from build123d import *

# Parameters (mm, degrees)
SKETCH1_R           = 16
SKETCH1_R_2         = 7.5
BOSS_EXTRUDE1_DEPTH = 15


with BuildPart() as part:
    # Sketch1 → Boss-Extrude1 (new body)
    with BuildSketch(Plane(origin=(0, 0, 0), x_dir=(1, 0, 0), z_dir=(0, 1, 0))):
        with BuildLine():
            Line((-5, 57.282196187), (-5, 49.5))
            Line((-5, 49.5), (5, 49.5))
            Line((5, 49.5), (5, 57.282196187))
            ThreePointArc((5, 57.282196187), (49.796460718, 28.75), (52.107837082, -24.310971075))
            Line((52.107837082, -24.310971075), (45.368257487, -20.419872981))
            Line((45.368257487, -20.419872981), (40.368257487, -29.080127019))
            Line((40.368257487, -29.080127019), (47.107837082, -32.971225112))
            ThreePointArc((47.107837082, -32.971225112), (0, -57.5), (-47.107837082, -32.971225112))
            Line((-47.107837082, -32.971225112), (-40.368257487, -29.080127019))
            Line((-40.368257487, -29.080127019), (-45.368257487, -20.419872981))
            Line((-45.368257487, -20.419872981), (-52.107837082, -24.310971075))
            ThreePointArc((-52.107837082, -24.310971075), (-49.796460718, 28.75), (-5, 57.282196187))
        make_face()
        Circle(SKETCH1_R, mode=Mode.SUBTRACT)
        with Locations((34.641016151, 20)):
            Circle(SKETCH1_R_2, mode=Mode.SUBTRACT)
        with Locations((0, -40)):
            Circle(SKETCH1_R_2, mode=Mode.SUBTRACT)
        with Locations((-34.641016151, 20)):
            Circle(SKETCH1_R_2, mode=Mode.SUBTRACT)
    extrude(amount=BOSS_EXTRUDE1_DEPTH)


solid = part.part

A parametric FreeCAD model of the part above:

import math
import FreeCAD as App
import Part
import Sketcher
from FreeCAD import Vector
Q = App.Units.Quantity

doc = App.newDocument("Part")
body = doc.addObject("PartDesign::Body", "Body")

# Sketch on XZ plane
sketch1 = body.newObject("Sketcher::SketchObject", "Sketch")
sketch1.AttachmentSupport = (doc.getObject("XZ_Plane"), [""])
sketch1.MapMode = "FlatFace"
sketch1.addGeometry([
    Part.LineSegment(Vector(-5, -49.5, 0), Vector(-5, -57.282196, 0)),  # 0
    Part.ArcOfCircle(Part.Circle(Vector(0, 0, 0), Vector(0, 0, 1), 57.5), math.radians(154.988542), math.radians(265.011458)),  # 1
    Part.LineSegment(Vector(-52.107837, 24.310971, 0), Vector(-45.368257, 20.419873, 0)),  # 2
    Part.LineSegment(Vector(-45.368257, 20.419873, 0), Vector(-40.368257, 29.080127, 0)),  # 3
    Part.LineSegment(Vector(-40.368257, 29.080127, 0), Vector(-47.107837, 32.971225, 0)),  # 4
    Part.ArcOfCircle(Part.Circle(Vector(0, 0, 0), Vector(0, 0, 1), 57.5), math.radians(34.988542), math.radians(145.011458)),  # 5
    Part.LineSegment(Vector(47.107837, 32.971225, 0), Vector(40.368257, 29.080127, 0)),  # 6
    Part.LineSegment(Vector(40.368257, 29.080127, 0), Vector(45.368257, 20.419873, 0)),  # 7
    Part.LineSegment(Vector(45.368257, 20.419873, 0), Vector(52.107837, 24.310971, 0)),  # 8
    Part.ArcOfCircle(Part.Circle(Vector(0, 0, 0), Vector(0, 0, 1), 57.5), math.radians(-85.011458), math.radians(25.011458)),  # 9
    Part.LineSegment(Vector(5, -57.282196, 0), Vector(5, -49.5, 0)),  # 10
    Part.LineSegment(Vector(5, -49.5, 0), Vector(-5, -49.5, 0)),  # 11
    Part.Circle(Vector(0, 40, 0), Vector(0, 0, 1), 7.5),  # 12
    Part.Circle(Vector(34.641016, -20, 0), Vector(0, 0, 1), 7.5),  # 13
    Part.Circle(Vector(0, 0, 0), Vector(0, 0, 1), 16),  # 14
    Part.Circle(Vector(-34.641016, -20, 0), Vector(0, 0, 1), 7.5),  # 15
], False)
sketch1.addConstraint([
    Sketcher.Constraint("Coincident", 0, 2, 1, 2),
    Sketcher.Constraint("Coincident", 1, 1, 2, 1),
    Sketcher.Constraint("Coincident", 2, 2, 3, 1),
    Sketcher.Constraint("Coincident", 3, 2, 4, 1),
    Sketcher.Constraint("Coincident", 4, 2, 5, 2),
    Sketcher.Constraint("Coincident", 5, 1, 6, 1),
    Sketcher.Constraint("Coincident", 6, 2, 7, 1),
    Sketcher.Constraint("Coincident", 7, 2, 8, 1),
    Sketcher.Constraint("Coincident", 8, 2, 9, 2),
    Sketcher.Constraint("Coincident", 9, 1, 10, 1),
    Sketcher.Constraint("Coincident", 10, 2, 11, 1),
    Sketcher.Constraint("Coincident", 11, 2, 0, 1),
    Sketcher.Constraint("Vertical", 0),
    Sketcher.Constraint("Vertical", 10),
    Sketcher.Constraint("Horizontal", 11),
    Sketcher.Constraint("Coincident", 1, 3, -1, 1),
    Sketcher.Constraint("Coincident", 5, 3, -1, 1),
    Sketcher.Constraint("Coincident", 9, 3, -1, 1),
    Sketcher.Constraint("Coincident", 14, 3, -1, 1),
    Sketcher.Constraint("Equal", 1, 5),
    Sketcher.Constraint("Equal", 5, 9),
    Sketcher.Constraint("Equal", 12, 13),
    Sketcher.Constraint("Equal", 13, 15),
    Sketcher.Constraint("Symmetric", 13, 3, 15, 3, -2),
    Sketcher.Constraint("Symmetric", 3, 2, 6, 2, -2),
    Sketcher.Constraint("Symmetric", 2, 2, 7, 2, -2),
    Sketcher.Constraint("PointOnObject", 12, 3, -2),
    Sketcher.Constraint("Perpendicular", 2, 3),
    Sketcher.Constraint("Perpendicular", 3, 4),
    Sketcher.Constraint("Perpendicular", 6, 7),
    Sketcher.Constraint("Perpendicular", 7, 8),
    Sketcher.Constraint("Horizontal", 0, 2, 9, 1),
    Sketcher.Constraint("Equal", 2, 4),
    Sketcher.Constraint("Diameter", 12, Q("15 mm")),
    Sketcher.Constraint("Diameter", 14, Q("32 mm")),
    Sketcher.Constraint("Radius", 1, Q("57.5 mm")),
    Sketcher.Constraint("DistanceX", 11, 2, 11, 1, Q("10 mm")),
    Sketcher.Constraint("Angle", 2, Q("-30 deg")),
    Sketcher.Constraint("Distance", 3, Q("10 mm")),
    Sketcher.Constraint("DistanceY", -1, 1, 12, 3, Q("40 mm")),
    Sketcher.Constraint("DistanceY", 13, 3, -1, 1, Q("20 mm")),
    Sketcher.Constraint("DistanceY", 10, 2, -1, 1, Q("49.5 mm")),
    Sketcher.Constraint("DistanceY", 2, 2, 1, 1, Q("3.891098 mm")),
    Sketcher.Constraint("DistanceX", 1, 1, 15, 3, Q("17.466821 mm")),
])
pad1 = body.newObject("PartDesign::Pad", "Pad")
pad1.Profile = sketch1
pad1.Length = 15
pad1.Reversed = True

doc.recompute()
